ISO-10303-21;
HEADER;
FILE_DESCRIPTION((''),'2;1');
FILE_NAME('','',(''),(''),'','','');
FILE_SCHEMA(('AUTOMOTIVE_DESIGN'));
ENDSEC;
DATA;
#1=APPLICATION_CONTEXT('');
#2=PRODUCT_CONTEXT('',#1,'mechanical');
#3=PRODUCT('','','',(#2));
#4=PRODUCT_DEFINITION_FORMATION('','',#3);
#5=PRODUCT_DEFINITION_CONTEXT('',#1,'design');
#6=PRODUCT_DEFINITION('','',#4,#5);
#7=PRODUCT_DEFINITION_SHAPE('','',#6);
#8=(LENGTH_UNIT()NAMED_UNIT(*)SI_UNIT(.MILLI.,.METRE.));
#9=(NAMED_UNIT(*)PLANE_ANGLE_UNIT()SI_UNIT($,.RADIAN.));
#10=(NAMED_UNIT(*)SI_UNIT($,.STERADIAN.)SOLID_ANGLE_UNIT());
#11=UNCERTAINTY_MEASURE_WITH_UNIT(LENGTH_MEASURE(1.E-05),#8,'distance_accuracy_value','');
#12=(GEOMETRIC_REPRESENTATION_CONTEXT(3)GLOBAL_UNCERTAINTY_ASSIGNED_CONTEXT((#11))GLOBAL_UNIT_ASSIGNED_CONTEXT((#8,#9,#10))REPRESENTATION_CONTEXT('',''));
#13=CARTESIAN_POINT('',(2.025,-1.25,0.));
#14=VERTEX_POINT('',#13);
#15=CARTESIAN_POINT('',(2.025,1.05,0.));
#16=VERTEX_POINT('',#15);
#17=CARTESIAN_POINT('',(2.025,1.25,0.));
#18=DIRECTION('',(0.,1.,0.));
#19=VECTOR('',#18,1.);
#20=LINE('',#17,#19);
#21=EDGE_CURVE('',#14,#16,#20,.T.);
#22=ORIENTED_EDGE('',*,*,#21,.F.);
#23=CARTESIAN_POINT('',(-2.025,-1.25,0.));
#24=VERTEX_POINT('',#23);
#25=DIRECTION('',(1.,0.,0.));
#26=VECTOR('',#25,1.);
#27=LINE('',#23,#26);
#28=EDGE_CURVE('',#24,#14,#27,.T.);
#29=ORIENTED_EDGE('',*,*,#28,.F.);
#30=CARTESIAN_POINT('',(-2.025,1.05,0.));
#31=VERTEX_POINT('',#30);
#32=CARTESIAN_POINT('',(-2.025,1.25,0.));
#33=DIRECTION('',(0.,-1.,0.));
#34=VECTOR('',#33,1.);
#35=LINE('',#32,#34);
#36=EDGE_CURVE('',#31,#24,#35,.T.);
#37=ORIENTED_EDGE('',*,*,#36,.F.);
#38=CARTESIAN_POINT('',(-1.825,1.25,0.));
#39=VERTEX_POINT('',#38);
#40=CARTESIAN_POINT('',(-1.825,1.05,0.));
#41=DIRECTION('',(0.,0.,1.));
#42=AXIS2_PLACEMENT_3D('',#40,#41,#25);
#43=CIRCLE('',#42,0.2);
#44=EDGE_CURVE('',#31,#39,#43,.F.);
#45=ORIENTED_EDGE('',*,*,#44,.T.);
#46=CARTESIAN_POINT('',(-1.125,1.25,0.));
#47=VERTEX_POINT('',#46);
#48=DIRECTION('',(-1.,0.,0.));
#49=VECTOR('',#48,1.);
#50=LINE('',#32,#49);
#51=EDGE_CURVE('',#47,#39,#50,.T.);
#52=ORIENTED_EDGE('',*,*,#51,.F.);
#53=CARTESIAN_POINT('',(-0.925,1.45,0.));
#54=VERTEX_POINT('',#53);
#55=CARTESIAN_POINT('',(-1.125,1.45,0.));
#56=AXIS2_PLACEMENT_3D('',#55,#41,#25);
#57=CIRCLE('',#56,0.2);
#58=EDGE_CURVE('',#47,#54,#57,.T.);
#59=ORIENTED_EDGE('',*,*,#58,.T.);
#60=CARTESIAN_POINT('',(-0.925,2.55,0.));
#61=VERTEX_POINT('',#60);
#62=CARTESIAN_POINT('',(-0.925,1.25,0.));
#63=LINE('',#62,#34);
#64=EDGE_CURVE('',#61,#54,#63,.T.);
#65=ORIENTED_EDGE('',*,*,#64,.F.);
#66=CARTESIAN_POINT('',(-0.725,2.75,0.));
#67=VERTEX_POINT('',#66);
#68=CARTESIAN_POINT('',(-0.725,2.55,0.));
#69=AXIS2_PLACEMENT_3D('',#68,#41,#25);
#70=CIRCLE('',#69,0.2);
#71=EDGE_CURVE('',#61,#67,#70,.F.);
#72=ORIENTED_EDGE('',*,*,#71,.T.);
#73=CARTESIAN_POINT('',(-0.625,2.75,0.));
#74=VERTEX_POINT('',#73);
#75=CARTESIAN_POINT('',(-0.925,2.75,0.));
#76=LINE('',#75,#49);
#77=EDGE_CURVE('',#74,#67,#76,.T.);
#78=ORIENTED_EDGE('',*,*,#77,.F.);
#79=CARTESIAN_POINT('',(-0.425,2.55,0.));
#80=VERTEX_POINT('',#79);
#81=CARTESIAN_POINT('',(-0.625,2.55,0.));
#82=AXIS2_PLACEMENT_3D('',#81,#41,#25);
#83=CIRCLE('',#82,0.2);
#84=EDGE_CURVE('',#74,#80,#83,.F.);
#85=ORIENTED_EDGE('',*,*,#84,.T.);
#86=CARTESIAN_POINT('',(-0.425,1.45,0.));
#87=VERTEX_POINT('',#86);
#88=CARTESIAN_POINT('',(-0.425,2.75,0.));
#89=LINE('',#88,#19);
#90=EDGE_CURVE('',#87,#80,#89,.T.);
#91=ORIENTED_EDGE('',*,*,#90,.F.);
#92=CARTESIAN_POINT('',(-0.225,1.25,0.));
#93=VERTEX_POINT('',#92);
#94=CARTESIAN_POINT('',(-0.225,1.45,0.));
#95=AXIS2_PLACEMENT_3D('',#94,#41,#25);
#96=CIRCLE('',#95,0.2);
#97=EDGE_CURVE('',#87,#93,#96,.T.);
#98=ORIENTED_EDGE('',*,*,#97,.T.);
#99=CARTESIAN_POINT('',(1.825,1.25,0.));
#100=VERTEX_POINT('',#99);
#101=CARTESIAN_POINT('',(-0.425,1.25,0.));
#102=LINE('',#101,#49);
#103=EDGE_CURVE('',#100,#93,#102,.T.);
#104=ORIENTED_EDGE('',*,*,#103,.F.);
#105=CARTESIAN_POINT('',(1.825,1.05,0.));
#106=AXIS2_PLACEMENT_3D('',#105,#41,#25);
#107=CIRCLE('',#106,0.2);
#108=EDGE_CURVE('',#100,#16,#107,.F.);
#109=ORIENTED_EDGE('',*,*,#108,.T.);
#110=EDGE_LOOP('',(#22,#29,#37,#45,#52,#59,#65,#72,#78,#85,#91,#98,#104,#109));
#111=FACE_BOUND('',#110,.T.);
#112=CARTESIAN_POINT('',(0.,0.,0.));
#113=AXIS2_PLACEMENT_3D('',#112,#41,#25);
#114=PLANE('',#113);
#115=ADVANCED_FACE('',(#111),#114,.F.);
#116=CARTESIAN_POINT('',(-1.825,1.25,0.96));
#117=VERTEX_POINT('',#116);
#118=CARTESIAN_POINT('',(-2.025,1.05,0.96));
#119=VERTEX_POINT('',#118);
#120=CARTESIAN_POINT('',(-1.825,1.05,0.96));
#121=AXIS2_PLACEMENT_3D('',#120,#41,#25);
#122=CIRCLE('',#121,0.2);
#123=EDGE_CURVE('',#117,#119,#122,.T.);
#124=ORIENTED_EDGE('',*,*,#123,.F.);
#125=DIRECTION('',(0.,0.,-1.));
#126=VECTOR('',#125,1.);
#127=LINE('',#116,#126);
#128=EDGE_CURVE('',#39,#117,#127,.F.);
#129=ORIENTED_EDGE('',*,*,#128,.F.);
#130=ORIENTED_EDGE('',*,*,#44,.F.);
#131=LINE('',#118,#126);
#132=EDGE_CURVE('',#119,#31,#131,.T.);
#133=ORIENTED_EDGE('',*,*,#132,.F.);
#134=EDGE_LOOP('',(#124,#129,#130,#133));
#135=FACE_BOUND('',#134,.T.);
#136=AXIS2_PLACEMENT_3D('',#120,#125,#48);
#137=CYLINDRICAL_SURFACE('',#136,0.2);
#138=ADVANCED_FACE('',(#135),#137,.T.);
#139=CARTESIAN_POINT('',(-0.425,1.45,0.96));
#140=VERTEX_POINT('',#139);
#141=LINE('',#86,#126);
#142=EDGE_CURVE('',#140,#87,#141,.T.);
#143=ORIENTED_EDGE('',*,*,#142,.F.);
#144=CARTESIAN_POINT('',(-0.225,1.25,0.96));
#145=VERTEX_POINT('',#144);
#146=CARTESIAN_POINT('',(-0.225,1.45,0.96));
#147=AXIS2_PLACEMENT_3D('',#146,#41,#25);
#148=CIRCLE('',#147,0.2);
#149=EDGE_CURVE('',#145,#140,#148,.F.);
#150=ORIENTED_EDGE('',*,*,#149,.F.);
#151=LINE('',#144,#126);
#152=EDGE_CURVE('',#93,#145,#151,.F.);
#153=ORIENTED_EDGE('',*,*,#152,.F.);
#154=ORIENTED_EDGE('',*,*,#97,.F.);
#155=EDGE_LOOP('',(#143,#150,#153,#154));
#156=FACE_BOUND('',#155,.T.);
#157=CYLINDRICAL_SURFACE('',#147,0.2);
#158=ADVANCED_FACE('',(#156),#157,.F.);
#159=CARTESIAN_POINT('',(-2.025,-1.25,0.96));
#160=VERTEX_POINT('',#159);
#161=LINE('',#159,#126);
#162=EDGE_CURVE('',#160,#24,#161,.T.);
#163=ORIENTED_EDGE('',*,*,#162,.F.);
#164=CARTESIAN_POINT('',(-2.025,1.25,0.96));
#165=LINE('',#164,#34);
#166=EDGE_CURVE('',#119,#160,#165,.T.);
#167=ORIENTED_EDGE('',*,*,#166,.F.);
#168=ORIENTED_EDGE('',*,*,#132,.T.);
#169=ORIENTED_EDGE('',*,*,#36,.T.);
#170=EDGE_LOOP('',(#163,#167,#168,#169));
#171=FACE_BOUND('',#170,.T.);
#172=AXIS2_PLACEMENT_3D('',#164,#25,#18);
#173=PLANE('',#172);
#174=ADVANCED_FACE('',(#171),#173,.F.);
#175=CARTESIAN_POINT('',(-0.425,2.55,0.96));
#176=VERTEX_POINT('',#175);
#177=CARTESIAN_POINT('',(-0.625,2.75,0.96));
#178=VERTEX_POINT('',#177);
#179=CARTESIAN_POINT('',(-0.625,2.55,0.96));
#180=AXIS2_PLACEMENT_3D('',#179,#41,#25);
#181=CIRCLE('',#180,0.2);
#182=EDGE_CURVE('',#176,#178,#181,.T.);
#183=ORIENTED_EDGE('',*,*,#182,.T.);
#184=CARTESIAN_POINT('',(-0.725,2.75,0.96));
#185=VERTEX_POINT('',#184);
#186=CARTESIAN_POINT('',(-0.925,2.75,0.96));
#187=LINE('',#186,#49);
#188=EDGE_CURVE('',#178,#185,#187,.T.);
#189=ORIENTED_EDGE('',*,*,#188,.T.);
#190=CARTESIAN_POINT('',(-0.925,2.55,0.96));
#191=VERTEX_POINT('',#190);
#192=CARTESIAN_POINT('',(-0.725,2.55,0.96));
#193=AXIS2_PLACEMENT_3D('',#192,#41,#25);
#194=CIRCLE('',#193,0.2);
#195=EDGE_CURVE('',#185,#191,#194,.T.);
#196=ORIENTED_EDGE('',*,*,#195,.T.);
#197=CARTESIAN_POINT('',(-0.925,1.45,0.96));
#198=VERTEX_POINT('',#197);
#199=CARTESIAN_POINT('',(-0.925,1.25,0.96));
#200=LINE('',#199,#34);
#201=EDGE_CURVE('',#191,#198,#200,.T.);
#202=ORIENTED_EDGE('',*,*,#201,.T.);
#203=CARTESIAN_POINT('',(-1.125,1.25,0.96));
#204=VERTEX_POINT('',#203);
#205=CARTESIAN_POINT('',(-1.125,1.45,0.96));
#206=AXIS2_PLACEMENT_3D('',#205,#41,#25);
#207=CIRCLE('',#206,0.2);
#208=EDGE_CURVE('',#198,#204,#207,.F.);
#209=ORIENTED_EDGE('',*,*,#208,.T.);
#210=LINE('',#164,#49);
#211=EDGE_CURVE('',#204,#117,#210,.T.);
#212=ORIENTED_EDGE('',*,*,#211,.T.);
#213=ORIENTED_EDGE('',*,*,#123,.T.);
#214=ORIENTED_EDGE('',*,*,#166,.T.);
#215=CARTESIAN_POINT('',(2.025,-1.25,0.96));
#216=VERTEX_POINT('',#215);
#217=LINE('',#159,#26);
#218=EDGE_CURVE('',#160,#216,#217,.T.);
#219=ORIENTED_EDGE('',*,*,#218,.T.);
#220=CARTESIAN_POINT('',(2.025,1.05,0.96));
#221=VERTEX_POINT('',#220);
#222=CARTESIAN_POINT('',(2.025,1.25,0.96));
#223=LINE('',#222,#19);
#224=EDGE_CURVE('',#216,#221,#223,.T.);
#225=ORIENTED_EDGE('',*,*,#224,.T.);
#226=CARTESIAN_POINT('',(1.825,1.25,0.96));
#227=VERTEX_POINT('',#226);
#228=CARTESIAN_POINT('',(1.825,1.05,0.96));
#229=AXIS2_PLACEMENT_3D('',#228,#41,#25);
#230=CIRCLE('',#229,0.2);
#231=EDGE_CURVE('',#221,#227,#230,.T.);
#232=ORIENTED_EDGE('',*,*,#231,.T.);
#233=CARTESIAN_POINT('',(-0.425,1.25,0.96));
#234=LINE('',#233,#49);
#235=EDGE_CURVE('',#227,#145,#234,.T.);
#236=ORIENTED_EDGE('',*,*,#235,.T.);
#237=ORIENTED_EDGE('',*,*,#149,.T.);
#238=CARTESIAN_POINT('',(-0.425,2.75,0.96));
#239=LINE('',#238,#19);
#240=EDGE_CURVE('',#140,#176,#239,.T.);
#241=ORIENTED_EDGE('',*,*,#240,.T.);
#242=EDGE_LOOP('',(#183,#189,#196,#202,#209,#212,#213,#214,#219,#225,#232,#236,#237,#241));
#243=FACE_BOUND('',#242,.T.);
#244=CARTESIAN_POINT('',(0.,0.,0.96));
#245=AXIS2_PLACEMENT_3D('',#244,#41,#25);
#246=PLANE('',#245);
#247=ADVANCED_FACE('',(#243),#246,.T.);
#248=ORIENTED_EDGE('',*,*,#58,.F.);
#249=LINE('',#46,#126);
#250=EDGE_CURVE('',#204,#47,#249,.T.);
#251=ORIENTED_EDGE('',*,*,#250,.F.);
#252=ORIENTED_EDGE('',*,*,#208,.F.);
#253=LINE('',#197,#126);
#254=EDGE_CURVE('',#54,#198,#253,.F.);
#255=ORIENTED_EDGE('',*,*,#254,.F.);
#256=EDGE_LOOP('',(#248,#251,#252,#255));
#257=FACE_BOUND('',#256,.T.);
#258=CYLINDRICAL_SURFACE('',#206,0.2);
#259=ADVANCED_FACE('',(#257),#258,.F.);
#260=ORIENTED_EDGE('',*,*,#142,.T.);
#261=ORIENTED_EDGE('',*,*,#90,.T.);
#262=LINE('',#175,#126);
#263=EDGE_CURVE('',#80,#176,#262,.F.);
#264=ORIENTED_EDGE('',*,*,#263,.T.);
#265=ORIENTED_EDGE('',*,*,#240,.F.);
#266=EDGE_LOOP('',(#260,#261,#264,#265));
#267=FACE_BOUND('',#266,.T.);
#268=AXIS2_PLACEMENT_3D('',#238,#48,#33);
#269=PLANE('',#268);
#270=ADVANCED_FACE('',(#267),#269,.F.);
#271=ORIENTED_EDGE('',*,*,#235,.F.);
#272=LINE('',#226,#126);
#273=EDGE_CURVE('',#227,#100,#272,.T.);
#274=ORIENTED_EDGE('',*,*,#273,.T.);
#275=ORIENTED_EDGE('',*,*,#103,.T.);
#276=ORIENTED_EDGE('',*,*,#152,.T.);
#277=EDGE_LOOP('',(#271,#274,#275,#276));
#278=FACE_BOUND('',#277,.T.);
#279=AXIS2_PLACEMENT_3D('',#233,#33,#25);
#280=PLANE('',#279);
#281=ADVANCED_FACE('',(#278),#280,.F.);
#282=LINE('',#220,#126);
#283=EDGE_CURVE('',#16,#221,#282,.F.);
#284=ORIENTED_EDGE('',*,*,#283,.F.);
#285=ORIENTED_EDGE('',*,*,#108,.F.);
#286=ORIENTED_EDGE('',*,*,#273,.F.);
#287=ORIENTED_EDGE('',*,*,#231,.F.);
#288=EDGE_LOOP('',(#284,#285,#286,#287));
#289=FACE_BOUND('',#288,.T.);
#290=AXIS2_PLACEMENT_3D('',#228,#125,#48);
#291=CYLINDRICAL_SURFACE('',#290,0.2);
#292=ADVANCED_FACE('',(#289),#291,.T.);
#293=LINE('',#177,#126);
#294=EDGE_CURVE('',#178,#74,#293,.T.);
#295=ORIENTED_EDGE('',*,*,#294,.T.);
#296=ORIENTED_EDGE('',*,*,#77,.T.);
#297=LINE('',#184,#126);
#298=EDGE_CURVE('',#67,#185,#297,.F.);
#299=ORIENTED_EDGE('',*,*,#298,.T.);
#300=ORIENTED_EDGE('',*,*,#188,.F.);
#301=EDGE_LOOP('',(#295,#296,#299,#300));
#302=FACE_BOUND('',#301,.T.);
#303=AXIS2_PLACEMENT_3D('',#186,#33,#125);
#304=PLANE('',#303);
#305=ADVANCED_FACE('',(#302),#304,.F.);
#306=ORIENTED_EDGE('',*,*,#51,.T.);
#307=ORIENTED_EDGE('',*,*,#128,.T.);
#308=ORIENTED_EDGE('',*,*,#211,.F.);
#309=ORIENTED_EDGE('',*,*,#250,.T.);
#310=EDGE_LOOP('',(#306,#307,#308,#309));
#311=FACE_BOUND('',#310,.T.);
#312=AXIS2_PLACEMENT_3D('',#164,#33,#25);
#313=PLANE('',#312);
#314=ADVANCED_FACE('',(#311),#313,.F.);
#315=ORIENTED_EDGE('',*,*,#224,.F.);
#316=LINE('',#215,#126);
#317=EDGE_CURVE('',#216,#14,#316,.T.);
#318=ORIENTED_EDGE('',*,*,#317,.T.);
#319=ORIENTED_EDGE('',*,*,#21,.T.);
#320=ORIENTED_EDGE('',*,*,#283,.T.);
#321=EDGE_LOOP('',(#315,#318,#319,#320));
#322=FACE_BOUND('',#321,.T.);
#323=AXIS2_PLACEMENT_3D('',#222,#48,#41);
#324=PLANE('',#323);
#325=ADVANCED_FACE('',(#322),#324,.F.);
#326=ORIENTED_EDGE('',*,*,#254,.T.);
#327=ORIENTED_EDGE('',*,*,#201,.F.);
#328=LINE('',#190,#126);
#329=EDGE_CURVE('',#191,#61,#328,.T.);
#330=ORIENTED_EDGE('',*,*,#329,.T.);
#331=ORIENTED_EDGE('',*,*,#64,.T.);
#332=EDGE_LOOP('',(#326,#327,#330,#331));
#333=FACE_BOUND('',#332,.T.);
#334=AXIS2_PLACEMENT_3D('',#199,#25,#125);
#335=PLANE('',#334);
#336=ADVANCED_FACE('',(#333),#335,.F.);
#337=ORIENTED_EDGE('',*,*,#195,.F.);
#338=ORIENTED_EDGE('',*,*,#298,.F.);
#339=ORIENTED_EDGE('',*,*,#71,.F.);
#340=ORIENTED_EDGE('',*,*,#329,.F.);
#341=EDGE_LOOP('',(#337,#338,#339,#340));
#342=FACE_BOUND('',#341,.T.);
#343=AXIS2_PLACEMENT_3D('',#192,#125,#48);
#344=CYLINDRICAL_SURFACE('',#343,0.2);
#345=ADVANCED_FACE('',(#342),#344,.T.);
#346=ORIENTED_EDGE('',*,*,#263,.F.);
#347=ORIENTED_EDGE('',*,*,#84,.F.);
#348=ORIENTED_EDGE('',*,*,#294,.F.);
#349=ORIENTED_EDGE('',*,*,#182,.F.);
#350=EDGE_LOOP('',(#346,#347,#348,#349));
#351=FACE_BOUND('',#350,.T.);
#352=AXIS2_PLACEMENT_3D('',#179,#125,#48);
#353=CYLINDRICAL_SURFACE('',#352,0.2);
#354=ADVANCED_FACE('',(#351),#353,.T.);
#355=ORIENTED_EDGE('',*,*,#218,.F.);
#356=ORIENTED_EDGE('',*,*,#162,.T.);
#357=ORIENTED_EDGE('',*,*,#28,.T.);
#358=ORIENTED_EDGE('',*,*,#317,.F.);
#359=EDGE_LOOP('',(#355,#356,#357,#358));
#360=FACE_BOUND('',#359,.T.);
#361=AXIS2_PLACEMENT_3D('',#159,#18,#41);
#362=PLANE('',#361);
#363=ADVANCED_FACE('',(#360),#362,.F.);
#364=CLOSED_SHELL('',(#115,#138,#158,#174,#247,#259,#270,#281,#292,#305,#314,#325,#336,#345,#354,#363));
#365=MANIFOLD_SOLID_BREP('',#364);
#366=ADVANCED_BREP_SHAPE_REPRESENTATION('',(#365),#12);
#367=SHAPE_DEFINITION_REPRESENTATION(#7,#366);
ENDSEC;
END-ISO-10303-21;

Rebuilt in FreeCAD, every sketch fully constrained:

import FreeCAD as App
import Part
import Sketcher
from FreeCAD import Vector
Q = App.Units.Quantity


def edges_at(feature, points):
    """Names of the edges that pass closest to the given points."""
    edges = feature.Shape.Edges
    near = lambda p: min(range(len(edges)), key=lambda i: edges[i].distToShape(Part.Vertex(*p))[0])
    return sorted({f"Edge{near(p) + 1}" for p in points})


def add_polygon(sketch, points):
    """Adds a closed chain of lines whose ends are joined by coincident constraints."""
    first, n = sketch.GeometryCount, len(points)
    for a, b in zip(points, points[1:] + points[:1]):
        sketch.addGeometry(Part.LineSegment(App.Vector(*a, 0), App.Vector(*b, 0)), False)
    for i in range(n):
        sketch.addConstraint(Sketcher.Constraint("Coincident", first + i, 2, first + (i + 1) % n, 1))

doc = App.newDocument("Part")
body = doc.addObject("PartDesign::Body", "Body")

# Sketch on XY plane
sketch1 = body.newObject("Sketcher::SketchObject", "Sketch")
sketch1.AttachmentSupport = (doc.getObject("XY_Plane"), [""])
sketch1.MapMode = "FlatFace"
add_polygon(sketch1, [(-0.9, 2.8), (-0.9, 1.2), (-2, 1.2), (-2, -1.2), (2, -1.2), (2, 1.2), (-0.4, 1.2), (-0.4, 2.8)])  # lines 0-7
sketch1.addConstraint([
    Sketcher.Constraint("Vertical", 0),
    Sketcher.Constraint("Horizontal", 1),
    Sketcher.Constraint("Vertical", 2),
    Sketcher.Constraint("Horizontal", 3),
    Sketcher.Constraint("Vertical", 4),
    Sketcher.Constraint("Horizontal", 5),
    Sketcher.Constraint("Vertical", 6),
    Sketcher.Constraint("Horizontal", 7),
    Sketcher.Constraint("Symmetric", 1, 2, 3, 2, -1, 1),
    Sketcher.Constraint("Horizontal", 1, 2, 4, 2),
    Sketcher.Constraint("DistanceX", 1, 2, 1, 1, Q("1.1 mm")),
    Sketcher.Constraint("DistanceX", 7, 2, 7, 1, Q("0.5 mm")),
    Sketcher.Constraint("DistanceY", 0, 2, 0, 1, Q("1.5 mm")),
    Sketcher.Constraint("DistanceY", 2, 2, 2, 1, Q("2.5 mm")),
    Sketcher.Constraint("DistanceX", 3, 1, 3, 2, Q("4.05 mm")),
])
pad1 = body.newObject("PartDesign::Pad", "Pad")
pad1.Profile = sketch1
pad1.Length = 0.96
doc.recompute()

fillet = body.newObject("PartDesign::Fillet", "Fillet")
fillet.Base = (pad1, edges_at(pad1, [
    (-2.025, 1.25, 0.48),
    (-0.925, 1.25, 0.48),
    (-0.925, 2.75, 0.48),
    (-0.425, 2.75, 0.48),
    (-0.425, 1.25, 0.48),
    (2.025, 1.25, 0.48),
]))
fillet.Radius = 0.2

doc.recompute()
